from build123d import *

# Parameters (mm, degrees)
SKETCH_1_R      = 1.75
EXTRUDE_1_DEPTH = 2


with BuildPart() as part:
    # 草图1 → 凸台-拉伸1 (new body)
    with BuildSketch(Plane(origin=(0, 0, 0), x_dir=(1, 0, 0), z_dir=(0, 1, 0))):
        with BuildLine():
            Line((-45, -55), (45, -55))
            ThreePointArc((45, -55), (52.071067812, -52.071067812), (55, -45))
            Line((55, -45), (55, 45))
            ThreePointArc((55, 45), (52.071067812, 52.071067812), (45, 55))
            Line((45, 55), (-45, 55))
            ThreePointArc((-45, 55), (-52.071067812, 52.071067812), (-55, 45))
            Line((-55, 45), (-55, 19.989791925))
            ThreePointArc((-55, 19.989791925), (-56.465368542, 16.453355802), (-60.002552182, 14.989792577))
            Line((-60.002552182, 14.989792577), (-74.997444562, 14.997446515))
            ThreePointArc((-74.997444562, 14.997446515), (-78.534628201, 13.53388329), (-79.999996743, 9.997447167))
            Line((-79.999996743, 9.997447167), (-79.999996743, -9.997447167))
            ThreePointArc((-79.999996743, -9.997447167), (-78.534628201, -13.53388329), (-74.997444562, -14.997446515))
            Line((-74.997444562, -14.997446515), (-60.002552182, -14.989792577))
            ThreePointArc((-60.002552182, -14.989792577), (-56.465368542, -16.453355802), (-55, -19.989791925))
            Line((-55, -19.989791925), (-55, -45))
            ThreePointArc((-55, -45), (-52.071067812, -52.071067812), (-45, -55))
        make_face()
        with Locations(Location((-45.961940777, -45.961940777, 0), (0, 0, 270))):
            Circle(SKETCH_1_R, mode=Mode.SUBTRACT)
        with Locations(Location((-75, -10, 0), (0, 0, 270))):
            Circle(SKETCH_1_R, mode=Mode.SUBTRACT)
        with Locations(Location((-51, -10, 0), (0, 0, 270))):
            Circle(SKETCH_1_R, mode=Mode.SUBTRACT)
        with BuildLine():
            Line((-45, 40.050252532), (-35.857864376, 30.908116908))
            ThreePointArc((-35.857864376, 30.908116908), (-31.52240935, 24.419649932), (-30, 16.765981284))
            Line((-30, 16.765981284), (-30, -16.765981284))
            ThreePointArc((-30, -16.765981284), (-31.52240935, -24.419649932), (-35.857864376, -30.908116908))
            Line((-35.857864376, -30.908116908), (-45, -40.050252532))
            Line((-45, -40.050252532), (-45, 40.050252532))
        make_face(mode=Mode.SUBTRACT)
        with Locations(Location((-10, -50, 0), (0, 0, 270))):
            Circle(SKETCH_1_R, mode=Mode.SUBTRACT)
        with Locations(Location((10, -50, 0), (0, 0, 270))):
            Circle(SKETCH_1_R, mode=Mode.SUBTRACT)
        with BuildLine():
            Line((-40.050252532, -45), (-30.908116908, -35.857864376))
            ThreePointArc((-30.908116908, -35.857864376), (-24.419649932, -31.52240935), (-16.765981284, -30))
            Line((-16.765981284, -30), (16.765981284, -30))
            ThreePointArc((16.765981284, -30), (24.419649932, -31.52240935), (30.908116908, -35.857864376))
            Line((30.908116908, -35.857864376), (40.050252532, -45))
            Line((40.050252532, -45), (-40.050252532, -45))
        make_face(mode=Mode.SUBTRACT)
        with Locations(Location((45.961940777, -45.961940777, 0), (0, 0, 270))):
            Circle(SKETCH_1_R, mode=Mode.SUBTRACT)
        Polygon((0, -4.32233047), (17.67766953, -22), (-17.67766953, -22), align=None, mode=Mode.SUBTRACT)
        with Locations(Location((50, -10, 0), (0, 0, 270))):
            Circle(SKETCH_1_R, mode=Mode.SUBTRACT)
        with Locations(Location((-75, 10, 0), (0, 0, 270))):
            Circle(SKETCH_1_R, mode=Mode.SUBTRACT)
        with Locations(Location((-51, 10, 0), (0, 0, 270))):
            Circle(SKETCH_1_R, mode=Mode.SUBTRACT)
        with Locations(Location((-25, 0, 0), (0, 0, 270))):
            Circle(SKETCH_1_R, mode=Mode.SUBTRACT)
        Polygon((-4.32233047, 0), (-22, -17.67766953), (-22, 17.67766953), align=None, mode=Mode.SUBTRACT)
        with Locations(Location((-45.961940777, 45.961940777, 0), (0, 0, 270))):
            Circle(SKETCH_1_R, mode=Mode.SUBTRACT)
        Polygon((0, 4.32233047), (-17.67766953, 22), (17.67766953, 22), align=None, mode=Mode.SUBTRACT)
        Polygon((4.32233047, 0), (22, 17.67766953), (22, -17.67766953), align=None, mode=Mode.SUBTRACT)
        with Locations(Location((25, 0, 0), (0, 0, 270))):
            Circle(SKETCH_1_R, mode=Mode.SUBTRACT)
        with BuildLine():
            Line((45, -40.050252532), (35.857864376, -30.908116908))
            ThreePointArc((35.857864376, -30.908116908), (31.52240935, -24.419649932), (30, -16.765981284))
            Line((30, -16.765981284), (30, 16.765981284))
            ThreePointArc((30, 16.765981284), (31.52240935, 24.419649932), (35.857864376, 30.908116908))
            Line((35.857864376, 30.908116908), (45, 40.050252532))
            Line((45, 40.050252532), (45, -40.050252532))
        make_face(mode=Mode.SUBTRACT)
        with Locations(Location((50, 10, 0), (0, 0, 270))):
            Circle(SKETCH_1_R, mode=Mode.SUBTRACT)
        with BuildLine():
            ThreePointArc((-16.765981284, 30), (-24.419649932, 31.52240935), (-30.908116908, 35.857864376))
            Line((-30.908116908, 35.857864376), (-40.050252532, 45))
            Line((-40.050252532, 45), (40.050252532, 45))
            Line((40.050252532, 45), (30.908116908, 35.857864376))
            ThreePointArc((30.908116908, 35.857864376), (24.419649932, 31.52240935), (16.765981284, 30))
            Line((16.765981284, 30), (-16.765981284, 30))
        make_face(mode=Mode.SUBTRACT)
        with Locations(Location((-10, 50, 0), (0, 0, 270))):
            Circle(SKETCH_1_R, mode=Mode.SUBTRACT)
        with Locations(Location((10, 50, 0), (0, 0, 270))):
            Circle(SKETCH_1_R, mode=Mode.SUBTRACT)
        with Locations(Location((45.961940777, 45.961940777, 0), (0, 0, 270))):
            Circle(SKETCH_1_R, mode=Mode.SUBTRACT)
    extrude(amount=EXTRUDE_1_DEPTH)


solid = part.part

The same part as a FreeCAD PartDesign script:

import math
import FreeCAD as App
import Part
import Sketcher
from FreeCAD import Vector


def add_polygon(sketch, points):
    """Adds a closed chain of lines whose ends are joined by coincident constraints."""
    first, n = sketch.GeometryCount, len(points)
    for a, b in zip(points, points[1:] + points[:1]):
        sketch.addGeometry(Part.LineSegment(App.Vector(*a, 0), App.Vector(*b, 0)), False)
    for i in range(n):
        sketch.addConstraint(Sketcher.Constraint("Coincident", first + i, 2, first + (i + 1) % n, 1))

doc = App.newDocument("Part")
body = doc.addObject("PartDesign::Body", "Body")

# Sketch on XZ plane
sketch1 = doc.addObject("Sketcher::SketchObject", "Sketch")
body.addObject(sketch1)
sketch1.AttachmentSupport = (doc.XZ_Plane, [""])
sketch1.MapMode = "FlatFace"
sketch1.addGeometry(Part.LineSegment(Vector(-45, 55, 0), Vector(45, 55, 0)), False)  # 0
sketch1.addGeometry(Part.ArcOfCircle(Part.Circle(Vector(45, 45, 0), Vector(0, 0, 1), 10), math.radians(0), math.radians(90)), False)  # 1
sketch1.addGeometry(Part.LineSegment(Vector(55, 45, 0), Vector(55, -45, 0)), False)  # 2
sketch1.addGeometry(Part.ArcOfCircle(Part.Circle(Vector(45, -45, 0), Vector(0, 0, 1), 10), math.radians(-90), math.radians(0)), False)  # 3
sketch1.addGeometry(Part.LineSegment(Vector(45, -55, 0), Vector(-45, -55, 0)), False)  # 4
sketch1.addGeometry(Part.ArcOfCircle(Part.Circle(Vector(-45, -45, 0), Vector(0, 0, 1), 10), math.radians(180), math.radians(270)), False)  # 5
sketch1.addGeometry(Part.LineSegment(Vector(-55, -45, 0), Vector(-55, -20, 0)), False)  # 6
sketch1.addGeometry(Part.ArcOfCircle(Part.Circle(Vector(-60, -20, 0), Vector(0, 0, 1), 5), math.radians(0), math.radians(90)), False)  # 7
sketch1.addGeometry(Part.LineSegment(Vector(-60, -15, 0), Vector(-75, -15, 0)), False)  # 8
sketch1.addGeometry(Part.ArcOfCircle(Part.Circle(Vector(-75, -10, 0), Vector(0, 0, 1), 5), math.radians(-180), math.radians(-90)), False)  # 9
sketch1.addGeometry(Part.LineSegment(Vector(-80, -10, 0), Vector(-80, 10, 0)), False)  # 10
sketch1.addGeometry(Part.ArcOfCircle(Part.Circle(Vector(-75, 10, 0), Vector(0, 0, 1), 5), math.radians(90), math.radians(180)), False)  # 11
sketch1.addGeometry(Part.LineSegment(Vector(-75, 15, 0), Vector(-60, 15, 0)), False)  # 12
sketch1.addGeometry(Part.ArcOfCircle(Part.Circle(Vector(-60, 20, 0), Vector(0, 0, 1), 5), math.radians(-90), math.radians(0)), False)  # 13
sketch1.addGeometry(Part.LineSegment(Vector(-55, 20, 0), Vector(-55, 45, 0)), False)  # 14
sketch1.addGeometry(Part.ArcOfCircle(Part.Circle(Vector(-45, 45, 0), Vector(0, 0, 1), 10), math.radians(90), math.radians(180)), False)  # 15
sketch1.addGeometry(Part.Circle(Vector(-46, 46, 0), Vector(0, 0, 1), 1.8), False)  # 16
sketch1.addGeometry(Part.Circle(Vector(-75, 10, 0), Vector(0, 0, 1), 1.8), False)  # 17
sketch1.addGeometry(Part.Circle(Vector(-51, 10, 0), Vector(0, 0, 1), 1.8), False)  # 18
sketch1.addGeometry(Part.Circle(Vector(-10, 50, 0), Vector(0, 0, 1), 1.8), False)  # 19
sketch1.addGeometry(Part.Circle(Vector(10, 50, 0), Vector(0, 0, 1), 1.8), False)  # 20
sketch1.addGeometry(Part.LineSegment(Vector(40.1, 45, 0), Vector(-40.1, 45, 0)), False)  # 21
sketch1.addGeometry(Part.LineSegment(Vector(-40.1, 45, 0), Vector(-30.9, 35.9, 0)), False)  # 22
sketch1.addGeometry(Part.ArcOfCircle(Part.Circle(Vector(-16.8, 50, 0), Vector(0, 0, 1), 20), math.radians(-135), math.radians(-90)), False)  # 23
sketch1.addGeometry(Part.LineSegment(Vector(-16.8, 30, 0), Vector(16.8, 30, 0)), False)  # 24
sketch1.addGeometry(Part.ArcOfCircle(Part.Circle(Vector(16.8, 50, 0), Vector(0, 0, 1), 20), math.radians(-90), math.radians(-45)), False)  # 25
sketch1.addGeometry(Part.LineSegment(Vector(30.9, 35.9, 0), Vector(40.1, 45, 0)), False)  # 26
sketch1.addGeometry(Part.Circle(Vector(46, 46, 0), Vector(0, 0, 1), 1.8), False)  # 27
add_polygon(sketch1, [(-17.7, 22), (0, 4.3), (17.7, 22)])  # lines 28-30
sketch1.addGeometry(Part.Circle(Vector(50, 10, 0), Vector(0, 0, 1), 1.8), False)  # 31
sketch1.addGeometry(Part.Circle(Vector(-75, -10, 0), Vector(0, 0, 1), 1.8), False)  # 32
sketch1.addGeometry(Part.Circle(Vector(-51, -10, 0), Vector(0, 0, 1), 1.8), False)  # 33
sketch1.addGeometry(Part.LineSegment(Vector(-45, 40.1, 0), Vector(-45, -40.1, 0)), False)  # 34
sketch1.addGeometry(Part.LineSegment(Vector(-45, -40.1, 0), Vector(-35.9, -30.9, 0)), False)  # 35
sketch1.addGeometry(Part.ArcOfCircle(Part.Circle(Vector(-50, -16.8, 0), Vector(0, 0, 1), 20), math.radians(-45), math.radians(0)), False)  # 36
sketch1.addGeometry(Part.LineSegment(Vector(-30, -16.8, 0), Vector(-30, 16.8, 0)), False)  # 37
sketch1.addGeometry(Part.ArcOfCircle(Part.Circle(Vector(-50, 16.8, 0), Vector(0, 0, 1), 20), math.radians(0), math.radians(45)), False)  # 38
sketch1.addGeometry(Part.LineSegment(Vector(-35.9, 30.9, 0), Vector(-45, 40.1, 0)), False)  # 39
sketch1.addGeometry(Part.Circle(Vector(-25, 0, 0), Vector(0, 0, 1), 1.8), False)  # 40
add_polygon(sketch1, [(-22, -17.7), (-4.3, 0), (-22, 17.7)])  # lines 41-43
sketch1.addGeometry(Part.Circle(Vector(-46, -46, 0), Vector(0, 0, 1), 1.8), False)  # 44
add_polygon(sketch1, [(22, 17.7), (4.3, 0), (22, -17.7)])  # lines 45-47
add_polygon(sketch1, [(17.7, -22), (0, -4.3), (-17.7, -22)])  # lines 48-50
sketch1.addGeometry(Part.Circle(Vector(25, 0, 0), Vector(0, 0, 1), 1.8), False)  # 51
sketch1.addGeometry(Part.LineSegment(Vector(45, -40.1, 0), Vector(45, 40.1, 0)), False)  # 52
sketch1.addGeometry(Part.LineSegment(Vector(45, 40.1, 0), Vector(35.9, 30.9, 0)), False)  # 53
sketch1.addGeometry(Part.ArcOfCircle(Part.Circle(Vector(50, 16.8, 0), Vector(0, 0, 1), 20), math.radians(135), math.radians(180)), False)  # 54
sketch1.addGeometry(Part.LineSegment(Vector(30, 16.8, 0), Vector(30, -16.8, 0)), False)  # 55
sketch1.addGeometry(Part.ArcOfCircle(Part.Circle(Vector(50, -16.8, 0), Vector(0, 0, 1), 20), math.radians(180), math.radians(225)), False)  # 56
sketch1.addGeometry(Part.LineSegment(Vector(35.9, -30.9, 0), Vector(45, -40.1, 0)), False)  # 57
sketch1.addGeometry(Part.Circle(Vector(50, -10, 0), Vector(0, 0, 1), 1.8), False)  # 58
sketch1.addGeometry(Part.LineSegment(Vector(16.8, -30, 0), Vector(-16.8, -30, 0)), False)  # 59
sketch1.addGeometry(Part.ArcOfCircle(Part.Circle(Vector(-16.8, -50, 0), Vector(0, 0, 1), 20), math.radians(90), math.radians(135)), False)  # 60
sketch1.addGeometry(Part.LineSegment(Vector(-30.9, -35.9, 0), Vector(-40.1, -45, 0)), False)  # 61
sketch1.addGeometry(Part.LineSegment(Vector(-40.1, -45, 0), Vector(40.1, -45, 0)), False)  # 62
sketch1.addGeometry(Part.LineSegment(Vector(40.1, -45, 0), Vector(30.9, -35.9, 0)), False)  # 63
sketch1.addGeometry(Part.ArcOfCircle(Part.Circle(Vector(16.8, -50, 0), Vector(0, 0, 1), 20), math.radians(45), math.radians(90)), False)  # 64
sketch1.addGeometry(Part.Circle(Vector(-10, -50, 0), Vector(0, 0, 1), 1.8), False)  # 65
sketch1.addGeometry(Part.Circle(Vector(10, -50, 0), Vector(0, 0, 1), 1.8), False)  # 66
sketch1.addGeometry(Part.Circle(Vector(46, -46, 0), Vector(0, 0, 1), 1.8), False)  # 67
sketch1.addConstraint(Sketcher.Constraint("Tangent", 0, 2, 1, 2))
sketch1.addConstraint(Sketcher.Constraint("Tangent", 1, 1, 2, 1))
sketch1.addConstraint(Sketcher.Constraint("Tangent", 2, 2, 3, 2))
sketch1.addConstraint(Sketcher.Constraint("Tangent", 3, 1, 4, 1))
sketch1.addConstraint(Sketcher.Constraint("Tangent", 4, 2, 5, 2))
sketch1.addConstraint(Sketcher.Constraint("Tangent", 5, 1, 6, 1))
sketch1.addConstraint(Sketcher.Constraint("Tangent", 6, 2, 7, 1))
sketch1.addConstraint(Sketcher.Constraint("Tangent", 7, 2, 8, 1))
sketch1.addConstraint(Sketcher.Constraint("Tangent", 8, 2, 9, 2))
sketch1.addConstraint(Sketcher.Constraint("Tangent", 9, 1, 10, 1))
sketch1.addConstraint(Sketcher.Constraint("Tangent", 10, 2, 11, 2))
sketch1.addConstraint(Sketcher.Constraint("Tangent", 11, 1, 12, 1))
sketch1.addConstraint(Sketcher.Constraint("Tangent", 12, 2, 13, 1))
sketch1.addConstraint(Sketcher.Constraint("Tangent", 13, 2, 14, 1))
sketch1.addConstraint(Sketcher.Constraint("Tangent", 14, 2, 15, 2))
sketch1.addConstraint(Sketcher.Constraint("Tangent", 15, 1, 0, 1))
sketch1.addConstraint(Sketcher.Constraint("Coincident", 21, 2, 22, 1))
sketch1.addConstraint(Sketcher.Constraint("Tangent", 22, 2, 23, 1))
sketch1.addConstraint(Sketcher.Constraint("Tangent", 23, 2, 24, 1))
sketch1.addConstraint(Sketcher.Constraint("Tangent", 24, 2, 25, 1))
sketch1.addConstraint(Sketcher.Constraint("Tangent", 25, 2, 26, 1))
sketch1.addConstraint(Sketcher.Constraint("Coincident", 26, 2, 21, 1))
sketch1.addConstraint(Sketcher.Constraint("Coincident", 34, 2, 35, 1))
sketch1.addConstraint(Sketcher.Constraint("Tangent", 35, 2, 36, 1))
sketch1.addConstraint(Sketcher.Constraint("Tangent", 36, 2, 37, 1))
sketch1.addConstraint(Sketcher.Constraint("Tangent", 37, 2, 38, 1))
sketch1.addConstraint(Sketcher.Constraint("Tangent", 38, 2, 39, 1))
sketch1.addConstraint(Sketcher.Constraint("Coincident", 39, 2, 34, 1))
sketch1.addConstraint(Sketcher.Constraint("Coincident", 52, 2, 53, 1))
sketch1.addConstraint(Sketcher.Constraint("Tangent", 53, 2, 54, 1))
sketch1.addConstraint(Sketcher.Constraint("Tangent", 54, 2, 55, 1))
sketch1.addConstraint(Sketcher.Constraint("Tangent", 55, 2, 56, 1))
sketch1.addConstraint(Sketcher.Constraint("Tangent", 56, 2, 57, 1))
sketch1.addConstraint(Sketcher.Constraint("Coincident", 57, 2, 52, 1))
sketch1.addConstraint(Sketcher.Constraint("Tangent", 59, 2, 60, 1))
sketch1.addConstraint(Sketcher.Constraint("Tangent", 60, 2, 61, 1))
sketch1.addConstraint(Sketcher.Constraint("Coincident", 61, 2, 62, 1))
sketch1.addConstraint(Sketcher.Constraint("Coincident", 62, 2, 63, 1))
sketch1.addConstraint(Sketcher.Constraint("Tangent", 63, 2, 64, 1))
sketch1.addConstraint(Sketcher.Constraint("Tangent", 64, 2, 59, 1))
sketch1.addConstraint(Sketcher.Constraint("Horizontal", 0))
sketch1.addConstraint(Sketcher.Constraint("Vertical", 2))
sketch1.addConstraint(Sketcher.Constraint("Horizontal", 4))
sketch1.addConstraint(Sketcher.Constraint("Vertical", 6))
sketch1.addConstraint(Sketcher.Constraint("Vertical", 10))
sketch1.addConstraint(Sketcher.Constraint("Vertical", 14))
sketch1.addConstraint(Sketcher.Constraint("Horizontal", 21))
sketch1.addConstraint(Sketcher.Constraint("Horizontal", 24))
sketch1.addConstraint(Sketcher.Constraint("Horizontal", 30))
sketch1.addConstraint(Sketcher.Constraint("Vertical", 34))
sketch1.addConstraint(Sketcher.Constraint("Vertical", 37))
sketch1.addConstraint(Sketcher.Constraint("Vertical", 43))
sketch1.addConstraint(Sketcher.Constraint("Vertical", 47))
sketch1.addConstraint(Sketcher.Constraint("Horizontal", 50))
sketch1.addConstraint(Sketcher.Constraint("Vertical", 52))
sketch1.addConstraint(Sketcher.Constraint("Vertical", 55))
sketch1.addConstraint(Sketcher.Constraint("Horizontal", 59))
sketch1.addConstraint(Sketcher.Constraint("Horizontal", 62))
sketch1.addConstraint(Sketcher.Constraint("Equal", 1, 3))
sketch1.addConstraint(Sketcher.Constraint("Equal", 3, 5))
sketch1.addConstraint(Sketcher.Constraint("Equal", 7, 9))
sketch1.addConstraint(Sketcher.Constraint("Equal", 9, 11))
sketch1.addConstraint(Sketcher.Constraint("Equal", 11, 13))
sketch1.addConstraint(Sketcher.Constraint("Equal", 5, 15))
sketch1.addConstraint(Sketcher.Constraint("Equal", 16, 17))
sketch1.addConstraint(Sketcher.Constraint("Equal", 17, 18))
sketch1.addConstraint(Sketcher.Constraint("Equal", 18, 19))
sketch1.addConstraint(Sketcher.Constraint("Equal", 19, 20))
sketch1.addConstraint(Sketcher.Constraint("Equal", 23, 25))
sketch1.addConstraint(Sketcher.Constraint("Equal", 20, 27))
sketch1.addConstraint(Sketcher.Constraint("Equal", 27, 31))
sketch1.addConstraint(Sketcher.Constraint("Equal", 31, 32))
sketch1.addConstraint(Sketcher.Constraint("Equal", 32, 33))
sketch1.addConstraint(Sketcher.Constraint("Equal", 25, 36))
sketch1.addConstraint(Sketcher.Constraint("Equal", 36, 38))
sketch1.addConstraint(Sketcher.Constraint("Equal", 33, 40))
sketch1.addConstraint(Sketcher.Constraint("Equal", 40, 44))
sketch1.addConstraint(Sketcher.Constraint("Equal", 44, 51))
sketch1.addConstraint(Sketcher.Constraint("Equal", 38, 54))
sketch1.addConstraint(Sketcher.Constraint("Equal", 54, 56))
sketch1.addConstraint(Sketcher.Constraint("Equal", 51, 58))
sketch1.addConstraint(Sketcher.Constraint("Equal", 56, 60))
sketch1.addConstraint(Sketcher.Constraint("Equal", 60, 64))
sketch1.addConstraint(Sketcher.Constraint("Equal", 58, 65))
sketch1.addConstraint(Sketcher.Constraint("Equal", 65, 66))
sketch1.addConstraint(Sketcher.Constraint("Equal", 66, 67))
sketch1.addConstraint(Sketcher.Constraint("Symmetric", 1, 3, 5, 3, -1, 1))
sketch1.addConstraint(Sketcher.Constraint("Symmetric", 27, 3, 44, 3, -1, 1))
sketch1.addConstraint(Sketcher.Constraint("Symmetric", 40, 3, 51, 3, -1, 1))
sketch1.addConstraint(Sketcher.Constraint("Symmetric", 36, 3, 54, 3, -1, 1))
sketch1.addConstraint(Sketcher.Constraint("Symmetric", 25, 3, 60, 3, -1, 1))
sketch1.addConstraint(Sketcher.Constraint("Symmetric", 20, 3, 65, 3, -1, 1))
sketch1.addConstraint(Sketcher.Constraint("Symmetric", 19, 3, 66, 3, -1, 1))
sketch1.addConstraint(Sketcher.Constraint("Symmetric", 16, 3, 67, 3, -1, 1))
sketch1.addConstraint(Sketcher.Constraint("Symmetric", 41, 2, 45, 2, -1, 1))
sketch1.addConstraint(Sketcher.Constraint("Symmetric", 42, 2, 46, 2, -1, 1))
sketch1.addConstraint(Sketcher.Constraint("Symmetric", 28, 2, 48, 2, -1, 1))
sketch1.addConstraint(Sketcher.Constraint("Symmetric", 29, 2, 49, 2, -1, 1))
sketch1.addConstraint(Sketcher.Constraint("Symmetric", 34, 2, 52, 2, -1, 1))
sketch1.addConstraint(Sketcher.Constraint("Symmetric", 38, 2, 56, 2, -1, 1))
sketch1.addConstraint(Sketcher.Constraint("Symmetric", 26, 2, 61, 2, -1, 1))
sketch1.addConstraint(Sketcher.Constraint("Symmetric", 22, 2, 63, 2, -1, 1))
sketch1.addConstraint(Sketcher.Constraint("Symmetric", 19, 3, 20, 3, -2))
sketch1.addConstraint(Sketcher.Constraint("Symmetric", 16, 3, 27, 3, -2))
sketch1.addConstraint(Sketcher.Constraint("Symmetric", 22, 2, 25, 2, -2))
sketch1.addConstraint(Sketcher.Constraint("Symmetric", 38, 2, 53, 2, -2))
sketch1.addConstraint(Sketcher.Constraint("Symmetric", 7, 3, 13, 3, -1))
sketch1.addConstraint(Sketcher.Constraint("Symmetric", 17, 3, 32, 3, -1))
sketch1.addConstraint(Sketcher.Constraint("Symmetric", 18, 3, 33, 3, -1))
sketch1.addConstraint(Sketcher.Constraint("Symmetric", 31, 3, 58, 3, -1))
sketch1.addConstraint(Sketcher.Constraint("PointOnObject", 40, 3, -1))
sketch1.addConstraint(Sketcher.Constraint("PointOnObject", 28, 2, -2))
sketch1.addConstraint(Sketcher.Constraint("PointOnObject", 41, 2, -1))
sketch1.addConstraint(Sketcher.Constraint("Perpendicular", 22, 26))
sketch1.addConstraint(Sketcher.Constraint("Perpendicular", 26, 28))
sketch1.addConstraint(Sketcher.Constraint("Perpendicular", 28, 29))
sketch1.addConstraint(Sketcher.Constraint("Parallel", 29, 35))
sketch1.addConstraint(Sketcher.Constraint("Perpendicular", 39, 41))
sketch1.addConstraint(Sketcher.Constraint("Perpendicular", 41, 42))
sketch1.addConstraint(Sketcher.Constraint("Perpendicular", 42, 45))
sketch1.addConstraint(Sketcher.Constraint("Parallel", 46, 48))
sketch1.addConstraint(Sketcher.Constraint("Horizontal", 17, 3, 18, 3))
sketch1.addConstraint(Sketcher.Constraint("Horizontal", 20, 3, 23, 3))
sketch1.addConstraint(Sketcher.Constraint("Horizontal", 18, 3, 31, 3))
sketch1.addConstraint(Sketcher.Constraint("Horizontal", 14, 2, 21, 2))
sketch1.addConstraint(Sketcher.Constraint("Vertical", 31, 3, 54, 3))
sketch1.addConstraint(Sketcher.Constraint("Vertical", 8, 2, 11, 1))
sketch1.addConstraint(Sketcher.Constraint("Vertical", 15, 1, 34, 2))
sketch1.addConstraint(Sketcher.Constraint("Equal", 4, 2))
sketch1.addConstraint(Sketcher.Constraint("Equal", 62, 34))
sketch1.addConstraint(Sketcher.Constraint("Equal", 59, 37))
sketch1.addConstraint(Sketcher.Constraint("Equal", 50, 43))
sketch1.addConstraint(Sketcher.Constraint("Radius", 1, 10.0))
sketch1.addConstraint(Sketcher.Constraint("Radius", 7, 5.0))
sketch1.addConstraint(Sketcher.Constraint("Radius", 23, 20.0))
sketch1.addConstraint(Sketcher.Constraint("Diameter", 16, 3.5))
sketch1.addConstraint(Sketcher.Constraint("DistanceX", 0, 1, 0, 2, 90.0))
sketch1.addConstraint(Sketcher.Constraint("Distance", 28, 25.0))
sketch1.addConstraint(Sketcher.Constraint("DistanceX", 17, 3, -1, 1, 75.0))
sketch1.addConstraint(Sketcher.Constraint("DistanceY", -1, 1, 17, 3, 10.0))
sketch1.addConstraint(Sketcher.Constraint("DistanceX", 18, 3, -1, 1, 51.0))
sketch1.addConstraint(Sketcher.Constraint("DistanceX", 19, 3, -1, 1, 10.0))
sketch1.addConstraint(Sketcher.Constraint("DistanceY", -1, 1, 19, 3, 50.0))
sketch1.addConstraint(Sketcher.Constraint("DistanceX", 40, 3, -1, 1, 25.0))
sketch1.addConstraint(Sketcher.Constraint("DistanceY", -1, 1, 29, 2, 22.0))
sketch1.addConstraint(Sketcher.Constraint("DistanceX", 42, 2, -1, 1, 22.0))
sketch1.addConstraint(Sketcher.Constraint("DistanceY", 6, 1, 6, 2, 25.010208))
sketch1.addConstraint(Sketcher.Constraint("DistanceX", 21, 2, 21, 1, 80.100505))
sketch1.addConstraint(Sketcher.Constraint("DistanceY", 10, 1, 10, 2, 19.994894))
sketch1.addConstraint(Sketcher.Constraint("DistanceX", 16, 3, -1, 1, 45.961941))
sketch1.addConstraint(Sketcher.Constraint("DistanceY", -1, 1, 16, 3, 45.961941))
sketch1.addConstraint(Sketcher.Constraint("Distance", 8, 14.994894))
pad1 = doc.addObject("PartDesign::Pad", "Pad")
body.addObject(pad1)
pad1.Profile = sketch1
pad1.Length = 2
pad1.Reversed = True

doc.recompute()
